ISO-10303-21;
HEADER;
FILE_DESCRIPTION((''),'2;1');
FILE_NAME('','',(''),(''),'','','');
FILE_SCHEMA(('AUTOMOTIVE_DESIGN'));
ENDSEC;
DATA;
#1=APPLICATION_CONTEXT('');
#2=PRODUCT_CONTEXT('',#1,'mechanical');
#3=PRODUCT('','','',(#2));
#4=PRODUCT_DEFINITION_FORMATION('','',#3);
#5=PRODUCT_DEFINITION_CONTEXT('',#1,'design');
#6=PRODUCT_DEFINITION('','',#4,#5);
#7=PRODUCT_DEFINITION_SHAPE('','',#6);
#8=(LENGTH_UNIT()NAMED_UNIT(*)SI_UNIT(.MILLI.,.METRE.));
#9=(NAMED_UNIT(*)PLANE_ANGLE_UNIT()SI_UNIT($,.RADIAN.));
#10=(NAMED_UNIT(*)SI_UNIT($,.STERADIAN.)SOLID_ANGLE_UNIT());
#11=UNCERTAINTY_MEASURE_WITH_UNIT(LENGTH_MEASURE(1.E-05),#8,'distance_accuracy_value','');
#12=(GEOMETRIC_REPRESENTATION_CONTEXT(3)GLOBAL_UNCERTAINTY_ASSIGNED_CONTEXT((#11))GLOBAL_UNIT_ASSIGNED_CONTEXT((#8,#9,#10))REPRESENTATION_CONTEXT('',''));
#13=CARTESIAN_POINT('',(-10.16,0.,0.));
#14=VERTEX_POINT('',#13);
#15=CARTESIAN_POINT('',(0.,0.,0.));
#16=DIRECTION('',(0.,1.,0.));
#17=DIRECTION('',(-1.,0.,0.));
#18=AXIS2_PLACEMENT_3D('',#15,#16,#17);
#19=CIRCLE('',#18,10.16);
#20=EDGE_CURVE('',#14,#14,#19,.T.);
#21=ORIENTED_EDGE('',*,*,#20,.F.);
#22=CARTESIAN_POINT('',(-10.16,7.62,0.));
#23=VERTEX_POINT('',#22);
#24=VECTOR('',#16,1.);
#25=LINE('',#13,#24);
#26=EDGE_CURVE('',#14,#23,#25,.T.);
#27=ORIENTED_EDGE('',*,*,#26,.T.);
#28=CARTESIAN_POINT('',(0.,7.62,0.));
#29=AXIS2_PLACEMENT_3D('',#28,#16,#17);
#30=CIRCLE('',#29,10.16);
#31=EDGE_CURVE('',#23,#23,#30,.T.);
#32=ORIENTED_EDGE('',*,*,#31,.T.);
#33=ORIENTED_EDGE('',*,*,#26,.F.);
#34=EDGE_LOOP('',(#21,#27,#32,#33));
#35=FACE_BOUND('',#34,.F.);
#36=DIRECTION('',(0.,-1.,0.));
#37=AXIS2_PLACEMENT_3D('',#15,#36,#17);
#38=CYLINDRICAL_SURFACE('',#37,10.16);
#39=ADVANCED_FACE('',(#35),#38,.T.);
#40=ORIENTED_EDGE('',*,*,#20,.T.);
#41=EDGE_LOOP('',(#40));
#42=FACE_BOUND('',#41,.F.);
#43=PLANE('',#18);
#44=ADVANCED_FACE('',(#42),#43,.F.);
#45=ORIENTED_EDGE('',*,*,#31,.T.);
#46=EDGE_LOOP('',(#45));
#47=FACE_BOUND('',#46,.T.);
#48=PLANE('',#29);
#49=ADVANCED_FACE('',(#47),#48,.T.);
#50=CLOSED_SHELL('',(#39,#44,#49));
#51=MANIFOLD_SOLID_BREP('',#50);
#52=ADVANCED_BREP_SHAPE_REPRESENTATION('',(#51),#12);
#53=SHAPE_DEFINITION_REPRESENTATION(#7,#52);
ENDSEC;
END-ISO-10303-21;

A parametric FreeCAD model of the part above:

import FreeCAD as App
import Part
import Sketcher
from FreeCAD import Vector
Q = App.Units.Quantity

doc = App.newDocument("Part")
body = doc.addObject("PartDesign::Body", "Body")

sketch1 = body.newObject("Sketcher::SketchObject", "Sketch")
sketch1.AttachmentSupport = (doc.getObject("XZ_Plane"), [""])
sketch1.MapMode = "FlatFace"
sketch1.addGeometry(Part.Circle(Vector(0, 0, 0), Vector(0, 0, 1), 10), False)
sketch1.addConstraint([
    Sketcher.Constraint("Coincident", 0, 3, -1, 1),
    Sketcher.Constraint("Diameter", 0, Q("0.8 in")),
])
pad1 = body.newObject("PartDesign::Pad", "Pad")
pad1.Profile = sketch1
pad1.Length = Q("0.3 in")
pad1.Reversed = True

doc.recompute()
